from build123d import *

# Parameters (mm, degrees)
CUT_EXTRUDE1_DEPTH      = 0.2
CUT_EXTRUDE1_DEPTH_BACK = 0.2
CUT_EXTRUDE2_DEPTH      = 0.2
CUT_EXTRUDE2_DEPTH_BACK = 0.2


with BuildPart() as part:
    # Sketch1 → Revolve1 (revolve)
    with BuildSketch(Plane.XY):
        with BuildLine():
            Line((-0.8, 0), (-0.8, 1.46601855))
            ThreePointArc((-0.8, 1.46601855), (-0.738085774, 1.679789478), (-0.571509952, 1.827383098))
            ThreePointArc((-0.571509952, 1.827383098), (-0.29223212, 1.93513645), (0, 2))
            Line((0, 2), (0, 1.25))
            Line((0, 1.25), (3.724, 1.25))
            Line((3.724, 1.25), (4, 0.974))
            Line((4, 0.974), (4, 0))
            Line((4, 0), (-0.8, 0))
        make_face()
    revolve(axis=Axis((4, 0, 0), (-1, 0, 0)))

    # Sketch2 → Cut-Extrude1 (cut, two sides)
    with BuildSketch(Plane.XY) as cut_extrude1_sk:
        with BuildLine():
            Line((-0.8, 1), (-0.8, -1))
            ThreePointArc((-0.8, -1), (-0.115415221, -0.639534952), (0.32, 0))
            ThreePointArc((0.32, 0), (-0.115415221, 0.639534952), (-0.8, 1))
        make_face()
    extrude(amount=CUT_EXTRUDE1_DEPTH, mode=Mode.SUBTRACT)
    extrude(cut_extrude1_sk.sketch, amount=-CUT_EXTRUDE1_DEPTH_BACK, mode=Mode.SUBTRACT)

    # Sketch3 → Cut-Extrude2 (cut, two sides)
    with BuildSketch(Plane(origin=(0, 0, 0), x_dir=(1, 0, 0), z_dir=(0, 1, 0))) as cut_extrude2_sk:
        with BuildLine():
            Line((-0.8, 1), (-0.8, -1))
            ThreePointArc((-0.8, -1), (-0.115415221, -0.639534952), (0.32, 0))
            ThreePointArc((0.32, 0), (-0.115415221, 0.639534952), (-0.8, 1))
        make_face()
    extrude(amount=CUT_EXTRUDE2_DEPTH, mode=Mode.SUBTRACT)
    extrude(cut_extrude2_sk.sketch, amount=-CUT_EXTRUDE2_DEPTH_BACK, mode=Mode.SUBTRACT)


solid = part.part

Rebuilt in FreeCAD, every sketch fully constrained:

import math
import FreeCAD as App
import Part
import Sketcher
Q = App.Units.Quantity

doc = App.newDocument("Part")
params = doc.addObject("Spreadsheet::Sheet", "Params")
for row, (alias, value) in enumerate([
    ("sketch1_radius", "2 mm"),
    ("sketch1_radius2", "0.4 mm"),
    ("sketch1_width", "4.8 mm"),
    ("sketch1_height", "0.75 mm"),
    ("revolution_angle", "360 deg"),
    ("sketch2_radius", "1.6 mm"),
    ("sketch2_height", "2 mm"),
    ("pocket1_length", "0.2 mm"),
    ("pocket1_length2", "0.2 mm"),
    ("sketch3_radius", "1.6 mm"),
    ("sketch3_height", "2 mm"),
    ("pocket2_length", "0.2 mm"),
    ("pocket2_length2", "0.2 mm"),
], start=1):
    params.set(f"A{row}", alias)
    params.set(f"B{row}", "=" + value)
    params.setAlias(f"B{row}", alias)

body = doc.addObject("PartDesign::Body", "Body")

# Sketch on XY plane
sketch1 = body.newObject("Sketcher::SketchObject", "Sketch")
sketch1.AttachmentSupport = (doc.getObject("XY_Plane"), [""])
sketch1.MapMode = "FlatFace"
sketch1.addGeometry([
    Part.LineSegment(App.Vector(-0.8, 1.47, 0), App.Vector(-0.8, 0, 0)),  # 0
    Part.LineSegment(App.Vector(-0.8, 0, 0), App.Vector(4, 0, 0)),  # 1
    Part.LineSegment(App.Vector(4, 0, 0), App.Vector(4, 0.97, 0)),  # 2
    Part.LineSegment(App.Vector(4, 0.97, 0), App.Vector(3.72, 1.25, 0)),  # 3
    Part.LineSegment(App.Vector(3.72, 1.25, 0), App.Vector(0, 1.25, 0)),  # 4
    Part.LineSegment(App.Vector(0, 1.25, 0), App.Vector(0, 2, 0)),  # 5
    Part.ArcOfCircle(Part.Circle(App.Vector(0.29, 0.02, 0), App.Vector(0, 0, 1), 2), math.radians(98.22), math.radians(115.39)),  # 6
    Part.ArcOfCircle(Part.Circle(App.Vector(-0.4, 1.47, 0), App.Vector(0, 0, 1), 0.4), math.radians(115), math.radians(180)),  # 7
], False)
sketch1.addConstraint([
    Sketcher.Constraint("Coincident", 0, 2, 1, 1),
    Sketcher.Constraint("Coincident", 1, 2, 2, 1),
    Sketcher.Constraint("Coincident", 2, 2, 3, 1),
    Sketcher.Constraint("Coincident", 3, 2, 4, 1),
    Sketcher.Constraint("Coincident", 4, 2, 5, 1),
    Sketcher.Constraint("Coincident", 5, 2, 6, 1),
    Sketcher.Constraint("Tangent", 6, 2, 7, 1),
    Sketcher.Constraint("Tangent", 7, 2, 0, 1),
    Sketcher.Constraint("Vertical", 0),
    Sketcher.Constraint("Horizontal", 1),
    Sketcher.Constraint("Vertical", 2),
    Sketcher.Constraint("Horizontal", 4),
    Sketcher.Constraint("Vertical", 5),
    Sketcher.Constraint("PointOnObject", 0, 2, -1),
    Sketcher.Constraint("PointOnObject", 4, 2, -2),
    Sketcher.Constraint("Radius", 6, Q("2 mm")),
    Sketcher.Constraint("Radius", 7, Q("0.4 mm")),
    Sketcher.Constraint("Angle", 3, Q("135 deg")),
    Sketcher.Constraint("DistanceX", 1, 1, 1, 2, Q("4.8 mm")),
    Sketcher.Constraint("DistanceX", -1, 1, 1, 2, Q("4 mm")),
    Sketcher.Constraint("DistanceY", -1, 1, 5, 2, Q("2 mm")),
    Sketcher.Constraint("DistanceY", 5, 1, 5, 2, Q("0.75 mm")),
    Sketcher.Constraint("DistanceX", 4, 2, 4, 1, Q("3.724 mm")),
    Sketcher.Constraint("DistanceY", 0, 2, 0, 1, Q("1.466019 mm")),
])
sketch1.setExpression("Constraints[15]", "Params.sketch1_radius")
sketch1.setExpression("Constraints[16]", "Params.sketch1_radius2")
sketch1.setExpression("Constraints[18]", "Params.sketch1_width")
sketch1.setExpression("Constraints[21]", "Params.sketch1_height")
revolution = body.newObject("PartDesign::Revolution", "Revolution")
revolution.Profile = sketch1
revolution.ReferenceAxis = (sketch1, ["H_Axis"])
revolution.setExpression("Angle", "Params.revolution_angle")

# Sketch on XY plane
sketch2 = body.newObject("Sketcher::SketchObject", "Sketch001")
sketch2.AttachmentSupport = (doc.getObject("XY_Plane"), [""])
sketch2.MapMode = "FlatFace"
sketch2.addGeometry([
    Part.LineSegment(App.Vector(-0.8, 1, 0), App.Vector(-0.8, -1, 0)),
    Part.ArcOfCircle(Part.Circle(App.Vector(-1.2, 0.6, 0), App.Vector(0, 0, 1), 1.6), math.radians(-76), math.radians(-20)),
    Part.ArcOfCircle(Part.Circle(App.Vector(-1.2, -0.6, 0), App.Vector(0, 0, 1), 1.6), math.radians(20), math.radians(76)),
], False)
sketch2.addConstraint([
    Sketcher.Constraint("Coincident", 0, 2, 1, 1),
    Sketcher.Constraint("Coincident", 1, 2, 2, 1),
    Sketcher.Constraint("Coincident", 2, 2, 0, 1),
    Sketcher.Constraint("Vertical", 0),
    Sketcher.Constraint("Equal", 1, 2),
    Sketcher.Constraint("Symmetric", 1, 3, 2, 3, -1),
    Sketcher.Constraint("Radius", 1, Q("1.6 mm")),
    Sketcher.Constraint("DistanceY", 0, 2, 0, 1, Q("2 mm")),
    Sketcher.Constraint("DistanceX", 0, 2, -1, 1, Q("0.8 mm")),
    Sketcher.Constraint("DistanceX", -1, 1, 1, 2, Q("0.32 mm")),
])
sketch2.setExpression("Constraints[6]", "Params.sketch2_radius")
sketch2.setExpression("Constraints[7]", "Params.sketch2_height")
pocket1 = body.newObject("PartDesign::Pocket", "Pocket")
pocket1.Profile = sketch2
pocket1.Type = "TwoLengths"
pocket1.setExpression("Length", "Params.pocket1_length")
pocket1.setExpression("Length2", "Params.pocket1_length2")
pocket1.Reversed = True

# Sketch on XZ plane
sketch3 = body.newObject("Sketcher::SketchObject", "Sketch002")
sketch3.AttachmentSupport = (doc.getObject("XZ_Plane"), [""])
sketch3.MapMode = "FlatFace"
sketch3.addGeometry([
    Part.LineSegment(App.Vector(-0.8, -1, 0), App.Vector(-0.8, 1, 0)),
    Part.ArcOfCircle(Part.Circle(App.Vector(-1.2, -0.6, 0), App.Vector(0, 0, 1), 1.6), math.radians(20), math.radians(76)),
    Part.ArcOfCircle(Part.Circle(App.Vector(-1.2, 0.6, 0), App.Vector(0, 0, 1), 1.6), math.radians(-76), math.radians(-20)),
], False)
sketch3.addConstraint([
    Sketcher.Constraint("Coincident", 0, 2, 1, 2),
    Sketcher.Constraint("Coincident", 1, 1, 2, 2),
    Sketcher.Constraint("Coincident", 2, 1, 0, 1),
    Sketcher.Constraint("Vertical", 0),
    Sketcher.Constraint("Equal", 1, 2),
    Sketcher.Constraint("Symmetric", 1, 3, 2, 3, -1),
    Sketcher.Constraint("Radius", 1, Q("1.6 mm")),
    Sketcher.Constraint("DistanceY", 0, 1, 0, 2, Q("2 mm")),
    Sketcher.Constraint("DistanceX", 0, 2, -1, 1, Q("0.8 mm")),
    Sketcher.Constraint("DistanceX", -1, 1, 1, 1, Q("0.32 mm")),
])
sketch3.setExpression("Constraints[6]", "Params.sketch3_radius")
sketch3.setExpression("Constraints[7]", "Params.sketch3_height")
pocket2 = body.newObject("PartDesign::Pocket", "Pocket001")
pocket2.Profile = sketch3
pocket2.Type = "TwoLengths"
pocket2.setExpression("Length", "Params.pocket2_length")
pocket2.setExpression("Length2", "Params.pocket2_length2")

doc.recompute()
